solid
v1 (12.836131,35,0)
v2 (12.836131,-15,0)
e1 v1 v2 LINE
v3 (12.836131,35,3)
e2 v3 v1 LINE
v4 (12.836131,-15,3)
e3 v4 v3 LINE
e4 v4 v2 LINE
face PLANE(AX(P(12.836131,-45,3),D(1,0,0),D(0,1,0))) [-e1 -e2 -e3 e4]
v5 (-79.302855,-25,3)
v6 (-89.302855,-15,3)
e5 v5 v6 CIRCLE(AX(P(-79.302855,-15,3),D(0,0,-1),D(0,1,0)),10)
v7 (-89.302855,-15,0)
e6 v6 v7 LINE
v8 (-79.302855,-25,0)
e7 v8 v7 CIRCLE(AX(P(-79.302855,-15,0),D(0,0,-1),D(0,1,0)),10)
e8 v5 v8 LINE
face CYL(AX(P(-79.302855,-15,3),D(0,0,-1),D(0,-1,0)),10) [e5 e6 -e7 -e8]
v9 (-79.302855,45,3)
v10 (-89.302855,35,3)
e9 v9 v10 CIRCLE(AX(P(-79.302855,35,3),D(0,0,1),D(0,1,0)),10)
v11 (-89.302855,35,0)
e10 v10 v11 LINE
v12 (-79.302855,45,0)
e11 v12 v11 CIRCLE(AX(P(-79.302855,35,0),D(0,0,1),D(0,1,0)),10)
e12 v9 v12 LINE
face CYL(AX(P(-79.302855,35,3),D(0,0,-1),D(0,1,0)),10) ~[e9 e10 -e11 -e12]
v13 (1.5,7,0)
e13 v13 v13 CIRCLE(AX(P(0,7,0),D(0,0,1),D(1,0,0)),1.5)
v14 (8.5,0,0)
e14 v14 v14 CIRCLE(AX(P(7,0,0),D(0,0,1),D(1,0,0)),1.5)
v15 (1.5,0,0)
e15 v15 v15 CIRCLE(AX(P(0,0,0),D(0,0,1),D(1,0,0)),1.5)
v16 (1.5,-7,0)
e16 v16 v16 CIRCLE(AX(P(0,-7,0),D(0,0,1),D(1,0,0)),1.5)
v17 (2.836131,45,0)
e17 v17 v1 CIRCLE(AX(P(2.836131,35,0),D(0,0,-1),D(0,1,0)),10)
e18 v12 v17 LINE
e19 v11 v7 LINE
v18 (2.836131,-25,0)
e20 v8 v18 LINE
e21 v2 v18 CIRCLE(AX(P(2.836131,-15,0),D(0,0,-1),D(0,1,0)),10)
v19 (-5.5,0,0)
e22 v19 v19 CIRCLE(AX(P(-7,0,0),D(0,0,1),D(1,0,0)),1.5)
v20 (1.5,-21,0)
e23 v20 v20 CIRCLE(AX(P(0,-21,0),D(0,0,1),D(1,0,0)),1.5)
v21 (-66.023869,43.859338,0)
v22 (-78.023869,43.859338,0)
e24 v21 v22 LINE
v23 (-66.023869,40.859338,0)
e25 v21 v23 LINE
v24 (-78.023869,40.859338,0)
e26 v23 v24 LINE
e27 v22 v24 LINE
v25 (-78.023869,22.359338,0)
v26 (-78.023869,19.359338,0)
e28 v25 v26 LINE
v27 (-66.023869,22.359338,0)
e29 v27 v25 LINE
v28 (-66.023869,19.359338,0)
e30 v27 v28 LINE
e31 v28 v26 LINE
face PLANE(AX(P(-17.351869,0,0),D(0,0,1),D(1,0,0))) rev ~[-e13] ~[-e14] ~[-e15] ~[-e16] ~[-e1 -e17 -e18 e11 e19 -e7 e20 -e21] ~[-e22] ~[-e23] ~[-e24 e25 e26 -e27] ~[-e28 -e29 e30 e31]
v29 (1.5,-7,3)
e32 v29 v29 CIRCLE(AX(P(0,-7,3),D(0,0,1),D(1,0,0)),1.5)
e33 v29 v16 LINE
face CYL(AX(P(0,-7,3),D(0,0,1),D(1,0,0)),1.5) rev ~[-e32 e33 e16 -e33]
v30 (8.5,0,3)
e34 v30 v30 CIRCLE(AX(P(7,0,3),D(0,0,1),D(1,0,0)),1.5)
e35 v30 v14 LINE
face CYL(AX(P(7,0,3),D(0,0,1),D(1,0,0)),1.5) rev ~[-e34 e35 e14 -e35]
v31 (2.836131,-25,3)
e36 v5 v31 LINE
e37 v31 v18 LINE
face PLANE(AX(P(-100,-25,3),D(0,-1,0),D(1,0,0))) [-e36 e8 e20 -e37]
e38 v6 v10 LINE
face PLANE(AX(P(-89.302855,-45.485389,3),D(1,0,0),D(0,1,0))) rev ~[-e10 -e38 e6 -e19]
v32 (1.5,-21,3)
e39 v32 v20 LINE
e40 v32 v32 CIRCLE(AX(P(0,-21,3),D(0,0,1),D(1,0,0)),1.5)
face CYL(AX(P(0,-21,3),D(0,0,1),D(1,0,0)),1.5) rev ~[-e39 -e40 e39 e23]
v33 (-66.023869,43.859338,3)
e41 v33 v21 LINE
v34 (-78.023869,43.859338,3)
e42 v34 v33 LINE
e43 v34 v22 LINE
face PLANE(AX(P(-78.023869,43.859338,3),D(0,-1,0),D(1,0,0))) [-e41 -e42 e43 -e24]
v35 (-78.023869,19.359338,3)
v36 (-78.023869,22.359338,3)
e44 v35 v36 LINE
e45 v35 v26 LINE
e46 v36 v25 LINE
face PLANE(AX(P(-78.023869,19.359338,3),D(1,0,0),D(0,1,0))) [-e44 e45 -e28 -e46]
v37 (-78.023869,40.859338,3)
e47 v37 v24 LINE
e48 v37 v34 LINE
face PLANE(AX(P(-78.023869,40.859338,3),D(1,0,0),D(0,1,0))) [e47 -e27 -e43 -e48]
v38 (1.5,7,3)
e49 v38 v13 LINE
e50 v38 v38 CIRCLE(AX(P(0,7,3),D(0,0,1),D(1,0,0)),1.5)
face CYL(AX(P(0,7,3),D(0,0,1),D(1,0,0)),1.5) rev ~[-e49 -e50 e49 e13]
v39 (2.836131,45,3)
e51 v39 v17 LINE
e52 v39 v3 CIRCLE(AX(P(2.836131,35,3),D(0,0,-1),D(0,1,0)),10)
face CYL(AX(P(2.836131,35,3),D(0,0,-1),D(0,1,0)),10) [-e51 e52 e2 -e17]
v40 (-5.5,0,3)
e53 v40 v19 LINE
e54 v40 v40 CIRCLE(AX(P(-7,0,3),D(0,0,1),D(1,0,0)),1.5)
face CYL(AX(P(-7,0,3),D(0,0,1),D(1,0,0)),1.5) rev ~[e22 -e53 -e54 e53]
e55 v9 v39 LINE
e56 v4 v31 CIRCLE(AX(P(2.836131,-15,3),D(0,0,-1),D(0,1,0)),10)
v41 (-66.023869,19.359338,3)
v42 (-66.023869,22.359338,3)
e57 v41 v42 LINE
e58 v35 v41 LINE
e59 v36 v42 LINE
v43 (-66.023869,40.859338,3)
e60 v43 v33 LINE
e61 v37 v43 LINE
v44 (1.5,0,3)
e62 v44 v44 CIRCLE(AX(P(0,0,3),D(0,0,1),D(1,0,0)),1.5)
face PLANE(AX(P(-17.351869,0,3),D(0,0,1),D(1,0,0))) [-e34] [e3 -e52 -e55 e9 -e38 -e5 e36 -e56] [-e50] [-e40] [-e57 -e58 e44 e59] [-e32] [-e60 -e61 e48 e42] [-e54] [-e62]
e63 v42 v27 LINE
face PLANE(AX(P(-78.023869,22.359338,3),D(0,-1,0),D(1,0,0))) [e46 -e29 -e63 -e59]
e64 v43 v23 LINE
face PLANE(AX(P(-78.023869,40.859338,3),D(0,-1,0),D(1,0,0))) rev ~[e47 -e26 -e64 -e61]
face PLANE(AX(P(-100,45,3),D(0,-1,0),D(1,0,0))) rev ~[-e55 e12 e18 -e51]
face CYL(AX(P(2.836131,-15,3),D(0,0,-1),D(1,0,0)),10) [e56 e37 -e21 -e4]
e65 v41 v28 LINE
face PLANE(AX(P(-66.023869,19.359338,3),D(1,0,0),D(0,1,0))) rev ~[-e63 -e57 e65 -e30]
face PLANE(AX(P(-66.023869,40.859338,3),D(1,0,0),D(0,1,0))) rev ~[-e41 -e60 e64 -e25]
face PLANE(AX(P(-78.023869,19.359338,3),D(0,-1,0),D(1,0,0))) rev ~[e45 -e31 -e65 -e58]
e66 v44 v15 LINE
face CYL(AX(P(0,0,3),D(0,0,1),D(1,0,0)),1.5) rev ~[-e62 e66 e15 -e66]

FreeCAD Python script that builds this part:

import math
import FreeCAD as App
import Part
import Sketcher

V = App.Vector


def edges_at(feature, points):
    """Names of the edges that pass closest to the given points."""
    edges = feature.Shape.Edges
    near = lambda p: min(range(len(edges)), key=lambda i: edges[i].distToShape(Part.Vertex(*p))[0])
    return sorted({f"Edge{near(p) + 1}" for p in points})


def add_polygon(sketch, points):
    """Adds a closed chain of lines whose ends are joined by coincident constraints."""
    first, n = sketch.GeometryCount, len(points)
    for a, b in zip(points, points[1:] + points[:1]):
        sketch.addGeometry(Part.LineSegment(App.Vector(*a, 0), App.Vector(*b, 0)), False)
    for i in range(n):
        sketch.addConstraint(Sketcher.Constraint("Coincident", first + i, 2, first + (i + 1) % n, 1))

doc = App.newDocument("Part")
body = doc.addObject("PartDesign::Body", "Body")

# Sketch on XY plane
sketch1 = body.newObject("Sketcher::SketchObject", "Sketch")
sketch1.AttachmentSupport = (doc.getObject("XY_Plane"), [""])
sketch1.MapMode = "FlatFace"
sketch1.addGeometry([
    Part.LineSegment(V(31, -95, 0), V(31, 95, 0)),
    Part.ArcOfCircle(Part.Circle(V(0, 0, 0), V(0, 0, 1), 100), math.radians(72), math.radians(288)),
], False)
sketch1.addConstraint([
    Sketcher.Constraint("Coincident", 0, 1, 1, 2),
    Sketcher.Constraint("Coincident", 1, 1, 0, 2),
    Sketcher.Constraint("Vertical", 0),
    Sketcher.Constraint("Coincident", 1, 3, -1, 1),
    Sketcher.Constraint("Radius", 1, 100.0),
    Sketcher.Constraint("DistanceY", 0, 1, 0, 2, 190.0),
])
pad1 = body.newObject("PartDesign::Pad", "Pad")
pad1.Profile = sketch1
pad1.Length = 3

# Sketch on XY plane
sketch2 = body.newObject("Sketcher::SketchObject", "Sketch001")
sketch2.AttachmentSupport = (doc.getObject("XY_Plane"), [""])
sketch2.MapMode = "FlatFace"
sketch2.AttachmentOffset = App.Placement(V(0, 0, 3), App.Rotation())
add_polygon(sketch2, [(-125, 125), (-125, -125), (56, -125), (56, 125)])  # lines 0-3
add_polygon(sketch2, [(31, -25), (-100, -25), (-100, 45), (31, 45)])  # lines 4-7
sketch2.addConstraint([
    Sketcher.Constraint("Vertical", 0),
    Sketcher.Constraint("Horizontal", 1),
    Sketcher.Constraint("Vertical", 2),
    Sketcher.Constraint("Horizontal", 3),
    Sketcher.Constraint("Horizontal", 4),
    Sketcher.Constraint("Vertical", 5),
    Sketcher.Constraint("Horizontal", 6),
    Sketcher.Constraint("Vertical", 7),
    Sketcher.Constraint("DistanceY", 5, 1, 5, 2, 70.0),
    Sketcher.Constraint("DistanceX", 4, 2, -1, 1, 100.0),
    Sketcher.Constraint("DistanceY", 4, 2, -1, 1, 25.0),
    Sketcher.Constraint("DistanceX", 1, 1, 1, 2, 181.071),
    Sketcher.Constraint("DistanceY", 0, 2, 0, 1, 249.846),
    Sketcher.Constraint("DistanceX", 0, 2, -1, 1, 124.923),
    Sketcher.Constraint("DistanceY", 0, 2, -1, 1, 124.923),
    Sketcher.Constraint("DistanceX", 4, 2, 4, 1, 131.22499),
])
pocket1 = body.newObject("PartDesign::Pocket", "Pocket")
pocket1.Profile = sketch2
pocket1.Length = 10

# Sketch on XY plane
sketch3 = body.newObject("Sketcher::SketchObject", "Sketch002")
sketch3.AttachmentSupport = (doc.getObject("XY_Plane"), [""])
sketch3.MapMode = "FlatFace"
sketch3.AttachmentOffset = App.Placement(V(0, 0, 3), App.Rotation())
sketch3.addGeometry(Part.Circle(V(0, 7, 0), V(0, 0, 1), 1.5), False)
sketch3.addConstraint([
    Sketcher.Constraint("PointOnObject", 0, 3, -2),
    Sketcher.Constraint("Diameter", 0, 3.0),
    Sketcher.Constraint("DistanceY", -1, 1, 0, 3, 7.0),
])
pocket2 = body.newObject("PartDesign::Pocket", "Pocket001")
pocket2.Profile = sketch3
pocket2.Type = "UpToFirst"

# Sketch on XY plane
sketch4 = body.newObject("Sketcher::SketchObject", "Sketch003")
sketch4.AttachmentSupport = (doc.getObject("XY_Plane"), [""])
sketch4.MapMode = "FlatFace"
sketch4.AttachmentOffset = App.Placement(V(0, 0, 3), App.Rotation())
sketch4.addGeometry(Part.Circle(V(0, -7, 0), V(0, 0, 1), 1.5), False)
sketch4.addConstraint([
    Sketcher.Constraint("PointOnObject", 0, 3, -2),
    Sketcher.Constraint("Diameter", 0, 3.0),
    Sketcher.Constraint("DistanceY", 0, 3, -1, 1, 7.0),
])
pocket3 = body.newObject("PartDesign::Pocket", "Pocket002")
pocket3.Profile = sketch4
pocket3.Type = "UpToFirst"

# Sketch on XY plane
sketch5 = body.newObject("Sketcher::SketchObject", "Sketch004")
sketch5.AttachmentSupport = (doc.getObject("XY_Plane"), [""])
sketch5.MapMode = "FlatFace"
sketch5.AttachmentOffset = App.Placement(V(0, 0, 3), App.Rotation())
sketch5.addGeometry(Part.Circle(V(7, 0, 0), V(0, 0, 1), 1.5), False)
sketch5.addConstraint([
    Sketcher.Constraint("PointOnObject", 0, 3, -1),
    Sketcher.Constraint("Diameter", 0, 3.0),
    Sketcher.Constraint("DistanceX", -1, 1, 0, 3, 7.0),
])
pocket4 = body.newObject("PartDesign::Pocket", "Pocket003")
pocket4.Profile = sketch5
pocket4.Type = "UpToFirst"

# Sketch on XY plane
sketch6 = body.newObject("Sketcher::SketchObject", "Sketch005")
sketch6.AttachmentSupport = (doc.getObject("XY_Plane"), [""])
sketch6.MapMode = "FlatFace"
sketch6.AttachmentOffset = App.Placement(V(0, 0, 3), App.Rotation())
sketch6.addGeometry(Part.Circle(V(-7, 0, 0), V(0, 0, 1), 1.5), False)
sketch6.addConstraint([
    Sketcher.Constraint("PointOnObject", 0, 3, -1),
    Sketcher.Constraint("Diameter", 0, 3.0),
    Sketcher.Constraint("DistanceX", 0, 3, -1, 1, 7.0),
])
pocket5 = body.newObject("PartDesign::Pocket", "Pocket004")
pocket5.Profile = sketch6
pocket5.Type = "UpToFirst"

# Sketch on XY plane
sketch7 = body.newObject("Sketcher::SketchObject", "Sketch006")
sketch7.AttachmentSupport = (doc.getObject("XY_Plane"), [""])
sketch7.MapMode = "FlatFace"
sketch7.AttachmentOffset = App.Placement(V(0, 0, 3), App.Rotation())
sketch7.addGeometry(Part.Circle(V(0, 0, 0), V(0, 0, 1), 1.5), False)
sketch7.addConstraint([
    Sketcher.Constraint("Coincident", 0, 3, -1, 1),
    Sketcher.Constraint("Diameter", 0, 3.0),
])
pocket6 = body.newObject("PartDesign::Pocket", "Pocket005")
pocket6.Profile = sketch7
pocket6.Type = "UpToFirst"

# Sketch on XY plane
sketch8 = body.newObject("Sketcher::SketchObject", "Sketch007")
sketch8.AttachmentSupport = (doc.getObject("XY_Plane"), [""])
sketch8.MapMode = "FlatFace"
sketch8.AttachmentOffset = App.Placement(V(0, 0, 3), App.Rotation())
sketch8.addGeometry(Part.Circle(V(0, -21, 0), V(0, 0, 1), 1.5), False)
sketch8.addConstraint([
    Sketcher.Constraint("PointOnObject", 0, 3, -2),
    Sketcher.Constraint("Diameter", 0, 3.0),
    Sketcher.Constraint("DistanceY", 0, 3, -1, 1, 21.0),
])
pocket7 = body.newObject("PartDesign::Pocket", "Pocket006")
pocket7.Profile = sketch8
pocket7.Type = "UpToFirst"

# Sketch on XY plane
sketch9 = body.newObject("Sketcher::SketchObject", "Sketch008")
sketch9.AttachmentSupport = (doc.getObject("XY_Plane"), [""])
sketch9.MapMode = "FlatFace"
sketch9.AttachmentOffset = App.Placement(V(0, 0, 3), App.Rotation())
add_polygon(sketch9, [(13, 45), (13, -45), (61, -45), (61, 45)])  # lines 0-3
sketch9.addConstraint([
    Sketcher.Constraint("Vertical", 0),
    Sketcher.Constraint("Horizontal", 1),
    Sketcher.Constraint("Vertical", 2),
    Sketcher.Constraint("Horizontal", 3),
    Sketcher.Constraint("DistanceY", 0, 2, 0, 1, 90.0),
    Sketcher.Constraint("DistanceY", 0, 2, -1, 1, 45.0),
    Sketcher.Constraint("DistanceX", 1, 1, 1, 2, 48.153955),
    Sketcher.Constraint("DistanceX", -1, 1, 0, 2, 12.836131),
])
pocket8 = body.newObject("PartDesign::Pocket", "Pocket007")
pocket8.Profile = sketch9
pocket8.Length = 3

# Sketch on XY plane
sketch10 = body.newObject("Sketcher::SketchObject", "Sketch009")
sketch10.AttachmentSupport = (doc.getObject("XY_Plane"), [""])
sketch10.MapMode = "FlatFace"
sketch10.AttachmentOffset = App.Placement(V(0, 0, 3), App.Rotation())
add_polygon(sketch10, [(-106, 45), (-106, -45), (-89, -45), (-89, 45)])  # lines 0-3
sketch10.addConstraint([
    Sketcher.Constraint("Vertical", 0),
    Sketcher.Constraint("Horizontal", 1),
    Sketcher.Constraint("Vertical", 2),
    Sketcher.Constraint("Horizontal", 3),
    Sketcher.Constraint("DistanceY", -1, 1, 2, 2, 45.0),
    Sketcher.Constraint("DistanceY", 0, 2, 0, 1, 90.485389),
    Sketcher.Constraint("DistanceX", 1, 1, 1, 2, 16.692706),
    Sketcher.Constraint("DistanceX", 0, 2, -1, 1, 105.995562),
])
pocket9 = body.newObject("PartDesign::Pocket", "Pocket008")
pocket9.Profile = sketch10
pocket9.Type = "UpToFirst"
doc.recompute()

fillet = body.newObject("PartDesign::Fillet", "Fillet")
fillet.Base = (pocket9, edges_at(pocket9, [
    (-89.303, 45, 1.5),
    (12.836, -25, 1.5),
    (12.836, 45, 1.5),
    (-89.303, -25, 1.5),
]))
fillet.Radius = 10

# Sketch on XY plane
sketch11 = body.newObject("Sketcher::SketchObject", "Sketch010")
sketch11.AttachmentSupport = (doc.getObject("XY_Plane"), [""])
sketch11.MapMode = "FlatFace"
sketch11.AttachmentOffset = App.Placement(V(0, 0, 3), App.Rotation())
add_polygon(sketch11, [(-78, 43.9), (-78, 40.9), (-66, 40.9), (-66, 43.9)])  # lines 0-3
sketch11.addConstraint([
    Sketcher.Constraint("Vertical", 0),
    Sketcher.Constraint("Horizontal", 1),
    Sketcher.Constraint("Vertical", 2),
    Sketcher.Constraint("Horizontal", 3),
    Sketcher.Constraint("DistanceX", 1, 1, 1, 2, 12.0),
    Sketcher.Constraint("DistanceY", 0, 2, 0, 1, 3.0),
    Sketcher.Constraint("DistanceX", 0, 2, -1, 1, 78.023869),
    Sketcher.Constraint("DistanceY", -1, 1, 0, 2, 40.859338),
])
pocket10 = body.newObject("PartDesign::Pocket", "Pocket009")
pocket10.Profile = sketch11
pocket10.Type = "UpToFirst"

# Sketch on XY plane
sketch12 = body.newObject("Sketcher::SketchObject", "Sketch011")
sketch12.AttachmentSupport = (doc.getObject("XY_Plane"), [""])
sketch12.MapMode = "FlatFace"
sketch12.AttachmentOffset = App.Placement(V(0, 0, 3), App.Rotation())
add_polygon(sketch12, [(-78, 22.4), (-78, 19.4), (-66, 19.4), (-66, 22.4)])  # lines 0-3
sketch12.addConstraint([
    Sketcher.Constraint("Vertical", 0),
    Sketcher.Constraint("Horizontal", 1),
    Sketcher.Constraint("Vertical", 2),
    Sketcher.Constraint("Horizontal", 3),
    Sketcher.Constraint("DistanceX", 1, 1, 1, 2, 12.0),
    Sketcher.Constraint("DistanceY", 0, 2, 0, 1, 3.0),
    Sketcher.Constraint("DistanceX", 0, 2, -1, 1, 78.023869),
    Sketcher.Constraint("DistanceY", -1, 1, 0, 2, 19.359338),
])
pocket11 = body.newObject("PartDesign::Pocket", "Pocket010")
pocket11.Profile = sketch12
pocket11.Type = "UpToFirst"

doc.recompute()
